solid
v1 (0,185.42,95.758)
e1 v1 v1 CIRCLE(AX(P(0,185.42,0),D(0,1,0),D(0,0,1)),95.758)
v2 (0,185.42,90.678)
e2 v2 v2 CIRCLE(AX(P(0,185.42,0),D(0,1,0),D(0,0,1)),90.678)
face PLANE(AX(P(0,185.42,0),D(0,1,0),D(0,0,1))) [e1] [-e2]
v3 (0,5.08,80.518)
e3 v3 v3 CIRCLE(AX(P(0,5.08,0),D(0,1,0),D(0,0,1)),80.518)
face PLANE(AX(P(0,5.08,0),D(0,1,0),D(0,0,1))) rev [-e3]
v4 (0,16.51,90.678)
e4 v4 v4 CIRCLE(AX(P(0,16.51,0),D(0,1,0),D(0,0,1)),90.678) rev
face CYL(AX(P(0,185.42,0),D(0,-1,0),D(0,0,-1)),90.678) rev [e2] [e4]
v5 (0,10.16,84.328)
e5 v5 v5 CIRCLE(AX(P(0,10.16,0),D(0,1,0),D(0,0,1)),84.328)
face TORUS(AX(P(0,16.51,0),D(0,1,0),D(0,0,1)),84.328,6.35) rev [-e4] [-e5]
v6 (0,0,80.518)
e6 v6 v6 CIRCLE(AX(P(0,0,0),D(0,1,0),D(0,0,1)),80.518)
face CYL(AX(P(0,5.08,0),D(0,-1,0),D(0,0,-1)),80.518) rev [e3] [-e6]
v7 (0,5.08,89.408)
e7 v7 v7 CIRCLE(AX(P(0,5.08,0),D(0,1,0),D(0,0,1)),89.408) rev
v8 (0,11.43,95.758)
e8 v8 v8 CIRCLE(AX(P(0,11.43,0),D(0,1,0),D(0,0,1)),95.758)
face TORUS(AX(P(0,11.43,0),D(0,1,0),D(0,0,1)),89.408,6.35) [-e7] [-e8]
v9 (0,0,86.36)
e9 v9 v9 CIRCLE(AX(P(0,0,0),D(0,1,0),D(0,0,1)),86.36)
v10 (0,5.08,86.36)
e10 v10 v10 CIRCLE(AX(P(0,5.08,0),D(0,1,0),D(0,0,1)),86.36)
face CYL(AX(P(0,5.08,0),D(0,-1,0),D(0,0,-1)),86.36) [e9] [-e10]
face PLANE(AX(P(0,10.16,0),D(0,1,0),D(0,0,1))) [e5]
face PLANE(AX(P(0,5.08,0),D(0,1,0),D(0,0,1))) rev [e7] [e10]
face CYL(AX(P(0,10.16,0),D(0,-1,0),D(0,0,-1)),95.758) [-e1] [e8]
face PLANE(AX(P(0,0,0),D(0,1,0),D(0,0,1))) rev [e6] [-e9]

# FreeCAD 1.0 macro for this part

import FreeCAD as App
import Part
import Sketcher
Q = App.Units.Quantity


def edges_at(feature, points):
    """Names of the edges that pass closest to the given points."""
    edges = feature.Shape.Edges
    near = lambda p: min(range(len(edges)), key=lambda i: edges[i].distToShape(Part.Vertex(*p))[0])
    return sorted({f"Edge{near(p) + 1}" for p in points})

doc = App.newDocument("Part")
params = doc.addObject("Spreadsheet::Sheet", "Params")
for row, (alias, value) in enumerate([
    ("sketch1_diameter", "6.8 in"),
    ("sketch1_diameter2", "6.34 in"),
    ("pad1_length", "0.2 in"),
    ("sketch2_diameter", "7.54 in"),
    ("pad2_length", "0.2 in"),
    ("sketch3_diameter", "7.54 in"),
    ("sketch3_diameter2", "7.14 in"),
    ("pad3_length", "6.9 in"),
    ("fillet_radius", "0.25 in"),
], start=1):
    params.set(f"A{row}", alias)
    params.set(f"B{row}", "=" + value)
    params.setAlias(f"B{row}", alias)

body = doc.addObject("PartDesign::Body", "Body")

sketch1 = body.newObject("Sketcher::SketchObject", "Sketch")
sketch1.AttachmentSupport = (doc.getObject("XZ_Plane"), [""])
sketch1.MapMode = "FlatFace"
sketch1.addGeometry(Part.Circle(App.Vector(0, 0, 0), App.Vector(0, 0, 1), 86), False)
sketch1.addGeometry(Part.Circle(App.Vector(0, 0, 0), App.Vector(0, 0, 1), 81), False)
sketch1.addConstraint(Sketcher.Constraint("Coincident", 0, 3, -1, 1))
sketch1.addConstraint(Sketcher.Constraint("Coincident", 1, 3, -1, 1))
sketch1.addConstraint(Sketcher.Constraint("Diameter", 0, Q("6.8 in")))
sketch1.addConstraint(Sketcher.Constraint("Diameter", 1, Q("6.34 in")))
sketch1.setExpression("Constraints[2]", "Params.sketch1_diameter")
sketch1.setExpression("Constraints[3]", "Params.sketch1_diameter2")
pad1 = body.newObject("PartDesign::Pad", "Pad")
pad1.Profile = sketch1
pad1.setExpression("Length", "Params.pad1_length")
pad1.Reversed = True

sketch2 = body.newObject("Sketcher::SketchObject", "Sketch001")
sketch2.AttachmentSupport = (doc.getObject("XZ_Plane"), [""])
sketch2.MapMode = "FlatFace"
sketch2.AttachmentOffset = App.Placement(App.Vector(0, 0, -0.2 * 25.4), App.Rotation())
sketch2.addGeometry(Part.Circle(App.Vector(0, 0, 0), App.Vector(0, 0, 1), 96), False)
sketch2.addConstraint(Sketcher.Constraint("Coincident", 0, 3, -1, 1))
sketch2.addConstraint(Sketcher.Constraint("Diameter", 0, Q("7.54 in")))
sketch2.setExpression("Constraints[1]", "Params.sketch2_diameter")
pad2 = body.newObject("PartDesign::Pad", "Pad001")
pad2.Profile = sketch2
pad2.setExpression("Length", "Params.pad2_length")
pad2.Reversed = True

sketch3 = body.newObject("Sketcher::SketchObject", "Sketch002")
sketch3.AttachmentSupport = (doc.getObject("XZ_Plane"), [""])
sketch3.MapMode = "FlatFace"
sketch3.AttachmentOffset = App.Placement(App.Vector(0, 0, -0.4 * 25.4), App.Rotation())
sketch3.addGeometry(Part.Circle(App.Vector(0, 0, 0), App.Vector(0, 0, 1), 96), False)
sketch3.addGeometry(Part.Circle(App.Vector(0, 0, 0), App.Vector(0, 0, 1), 91), False)
sketch3.addConstraint(Sketcher.Constraint("Coincident", 0, 3, -1, 1))
sketch3.addConstraint(Sketcher.Constraint("Coincident", 1, 3, -1, 1))
sketch3.addConstraint(Sketcher.Constraint("Diameter", 0, Q("7.54 in")))
sketch3.addConstraint(Sketcher.Constraint("Diameter", 1, Q("7.14 in")))
sketch3.setExpression("Constraints[2]", "Params.sketch3_diameter")
sketch3.setExpression("Constraints[3]", "Params.sketch3_diameter2")
pad3 = body.newObject("PartDesign::Pad", "Pad002")
pad3.Profile = sketch3
pad3.setExpression("Length", "Params.pad3_length")
pad3.Reversed = True
doc.recompute()

fillet = body.newObject("PartDesign::Fillet", "Fillet")
fillet.Base = (pad3, edges_at(pad3, [(0, 10.16, -90.678), (0, 5.08, -95.758)]))
fillet.setExpression("Radius", "Params.fillet_radius")

doc.recompute()
